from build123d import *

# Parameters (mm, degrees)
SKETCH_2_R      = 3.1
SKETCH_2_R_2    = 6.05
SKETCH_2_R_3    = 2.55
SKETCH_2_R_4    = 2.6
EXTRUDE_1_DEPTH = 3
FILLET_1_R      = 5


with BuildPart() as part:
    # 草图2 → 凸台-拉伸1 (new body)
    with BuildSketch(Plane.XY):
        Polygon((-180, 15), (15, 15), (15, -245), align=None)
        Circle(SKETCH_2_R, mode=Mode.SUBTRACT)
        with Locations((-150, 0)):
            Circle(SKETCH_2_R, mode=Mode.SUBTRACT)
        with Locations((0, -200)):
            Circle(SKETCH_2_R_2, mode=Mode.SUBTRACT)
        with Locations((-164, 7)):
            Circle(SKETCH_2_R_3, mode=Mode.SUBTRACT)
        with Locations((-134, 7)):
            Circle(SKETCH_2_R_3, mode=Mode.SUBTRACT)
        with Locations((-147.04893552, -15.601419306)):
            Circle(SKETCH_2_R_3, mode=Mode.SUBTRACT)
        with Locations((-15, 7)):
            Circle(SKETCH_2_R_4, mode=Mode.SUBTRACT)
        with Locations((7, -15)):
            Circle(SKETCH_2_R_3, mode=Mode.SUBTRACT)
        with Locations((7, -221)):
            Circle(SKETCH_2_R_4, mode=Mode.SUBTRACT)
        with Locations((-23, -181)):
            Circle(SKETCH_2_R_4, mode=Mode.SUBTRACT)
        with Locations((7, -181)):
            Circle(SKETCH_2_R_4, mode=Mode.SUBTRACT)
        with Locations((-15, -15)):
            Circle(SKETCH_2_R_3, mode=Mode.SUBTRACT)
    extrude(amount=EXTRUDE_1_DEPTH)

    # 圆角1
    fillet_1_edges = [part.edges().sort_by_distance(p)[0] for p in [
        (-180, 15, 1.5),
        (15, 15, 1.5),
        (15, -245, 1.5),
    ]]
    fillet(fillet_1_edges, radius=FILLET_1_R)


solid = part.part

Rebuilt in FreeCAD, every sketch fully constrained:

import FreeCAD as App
import Part
import Sketcher


def edges_at(feature, points):
    """Names of the edges that pass closest to the given points."""
    edges = feature.Shape.Edges
    near = lambda p: min(range(len(edges)), key=lambda i: edges[i].distToShape(Part.Vertex(*p))[0])
    return sorted({f"Edge{near(p) + 1}" for p in points})


def add_polygon(sketch, points):
    """Adds a closed chain of lines whose ends are joined by coincident constraints."""
    first, n = sketch.GeometryCount, len(points)
    for a, b in zip(points, points[1:] + points[:1]):
        sketch.addGeometry(Part.LineSegment(App.Vector(*a, 0), App.Vector(*b, 0)), False)
    for i in range(n):
        sketch.addConstraint(Sketcher.Constraint("Coincident", first + i, 2, first + (i + 1) % n, 1))

doc = App.newDocument("Part")
body = doc.addObject("PartDesign::Body", "Body")

# Sketch on XY plane
sketch1 = body.newObject("Sketcher::SketchObject", "Sketch")
sketch1.AttachmentSupport = (doc.getObject("XY_Plane"), [""])
sketch1.MapMode = "FlatFace"
add_polygon(sketch1, [(15, 15), (-180, 15), (15, -245)])  # lines 0-2
sketch1.addGeometry(Part.Circle(App.Vector(7, -221, 0), App.Vector(0, 0, 1), 2.6), False)  # 3
sketch1.addGeometry(Part.Circle(App.Vector(0, -200, 0), App.Vector(0, 0, 1), 6), False)  # 4
sketch1.addGeometry(Part.Circle(App.Vector(7, -181, 0), App.Vector(0, 0, 1), 2.6), False)  # 5
sketch1.addGeometry(Part.Circle(App.Vector(-23, -181, 0), App.Vector(0, 0, 1), 2.6), False)  # 6
sketch1.addGeometry(Part.Circle(App.Vector(7, -15, 0), App.Vector(0, 0, 1), 2.5), False)  # 7
sketch1.addGeometry(Part.Circle(App.Vector(0, 0, 0), App.Vector(0, 0, 1), 3.1), False)  # 8
sketch1.addGeometry(Part.Circle(App.Vector(-15, -15, 0), App.Vector(0, 0, 1), 2.5), False)  # 9
sketch1.addGeometry(Part.Circle(App.Vector(-15, 7, 0), App.Vector(0, 0, 1), 2.6), False)  # 10
sketch1.addGeometry(Part.Circle(App.Vector(-134, 7, 0), App.Vector(0, 0, 1), 2.5), False)  # 11
sketch1.addGeometry(Part.Circle(App.Vector(-147, -15.6, 0), App.Vector(0, 0, 1), 2.5), False)  # 12
sketch1.addGeometry(Part.Circle(App.Vector(-150, 0, 0), App.Vector(0, 0, 1), 3.1), False)  # 13
sketch1.addGeometry(Part.Circle(App.Vector(-164, 7, 0), App.Vector(0, 0, 1), 2.5), False)  # 14
sketch1.addConstraint(Sketcher.Constraint("Horizontal", 0))
sketch1.addConstraint(Sketcher.Constraint("Vertical", 2))
sketch1.addConstraint(Sketcher.Constraint("Coincident", 8, 3, -1, 1))
sketch1.addConstraint(Sketcher.Constraint("Equal", 3, 5))
sketch1.addConstraint(Sketcher.Constraint("Equal", 5, 6))
sketch1.addConstraint(Sketcher.Constraint("Equal", 7, 9))
sketch1.addConstraint(Sketcher.Constraint("Equal", 6, 10))
sketch1.addConstraint(Sketcher.Constraint("Equal", 9, 11))
sketch1.addConstraint(Sketcher.Constraint("Equal", 11, 12))
sketch1.addConstraint(Sketcher.Constraint("Equal", 8, 13))
sketch1.addConstraint(Sketcher.Constraint("Equal", 12, 14))
sketch1.addConstraint(Sketcher.Constraint("PointOnObject", 4, 3, -2))
sketch1.addConstraint(Sketcher.Constraint("PointOnObject", 13, 3, -1))
sketch1.addConstraint(Sketcher.Constraint("Horizontal", 5, 3, 6, 3))
sketch1.addConstraint(Sketcher.Constraint("Horizontal", 7, 3, 9, 3))
sketch1.addConstraint(Sketcher.Constraint("Horizontal", 10, 3, 11, 3))
sketch1.addConstraint(Sketcher.Constraint("Horizontal", 11, 3, 14, 3))
sketch1.addConstraint(Sketcher.Constraint("Vertical", 3, 3, 5, 3))
sketch1.addConstraint(Sketcher.Constraint("Vertical", 5, 3, 7, 3))
sketch1.addConstraint(Sketcher.Constraint("Vertical", 9, 3, 10, 3))
sketch1.addConstraint(Sketcher.Constraint("Diameter", 3, 5.2))
sketch1.addConstraint(Sketcher.Constraint("Diameter", 4, 12.1))
sketch1.addConstraint(Sketcher.Constraint("Diameter", 7, 5.1))
sketch1.addConstraint(Sketcher.Constraint("Diameter", 8, 6.2))
sketch1.addConstraint(Sketcher.Constraint("DistanceX", 0, 2, 0, 1, 195.0))
sketch1.addConstraint(Sketcher.Constraint("DistanceY", 2, 1, 2, 2, 260.0))
sketch1.addConstraint(Sketcher.Constraint("DistanceX", -1, 1, 3, 3, 7.0))
sketch1.addConstraint(Sketcher.Constraint("DistanceY", 3, 3, -1, 1, 221.0))
sketch1.addConstraint(Sketcher.Constraint("DistanceY", 4, 3, -1, 1, 200.0))
sketch1.addConstraint(Sketcher.Constraint("DistanceY", 5, 3, -1, 1, 181.0))
sketch1.addConstraint(Sketcher.Constraint("DistanceX", 6, 3, -1, 1, 23.0))
sketch1.addConstraint(Sketcher.Constraint("DistanceY", 7, 3, -1, 1, 15.0))
sketch1.addConstraint(Sketcher.Constraint("DistanceX", 9, 3, -1, 1, 15.0))
sketch1.addConstraint(Sketcher.Constraint("DistanceY", -1, 1, 10, 3, 7.0))
sketch1.addConstraint(Sketcher.Constraint("DistanceX", 11, 3, -1, 1, 134.0))
sketch1.addConstraint(Sketcher.Constraint("DistanceX", 13, 3, -1, 1, 150.0))
sketch1.addConstraint(Sketcher.Constraint("DistanceX", 14, 3, -1, 1, 164.0))
sketch1.addConstraint(Sketcher.Constraint("DistanceX", 0, 2, -1, 1, 180.0))
sketch1.addConstraint(Sketcher.Constraint("DistanceY", -1, 1, 0, 2, 15.0))
sketch1.addConstraint(Sketcher.Constraint("DistanceY", 12, 3, -1, 1, 15.601419))
sketch1.addConstraint(Sketcher.Constraint("DistanceX", 12, 3, -1, 1, 147.048936))
pad1 = body.newObject("PartDesign::Pad", "Pad")
pad1.Profile = sketch1
pad1.Length = 3
doc.recompute()

fillet = body.newObject("PartDesign::Fillet", "Fillet")
fillet.Base = (pad1, edges_at(pad1, [(-180, 15, 1.5), (15, 15, 1.5), (15, -245, 1.5)]))
fillet.Radius = 5

doc.recompute()
